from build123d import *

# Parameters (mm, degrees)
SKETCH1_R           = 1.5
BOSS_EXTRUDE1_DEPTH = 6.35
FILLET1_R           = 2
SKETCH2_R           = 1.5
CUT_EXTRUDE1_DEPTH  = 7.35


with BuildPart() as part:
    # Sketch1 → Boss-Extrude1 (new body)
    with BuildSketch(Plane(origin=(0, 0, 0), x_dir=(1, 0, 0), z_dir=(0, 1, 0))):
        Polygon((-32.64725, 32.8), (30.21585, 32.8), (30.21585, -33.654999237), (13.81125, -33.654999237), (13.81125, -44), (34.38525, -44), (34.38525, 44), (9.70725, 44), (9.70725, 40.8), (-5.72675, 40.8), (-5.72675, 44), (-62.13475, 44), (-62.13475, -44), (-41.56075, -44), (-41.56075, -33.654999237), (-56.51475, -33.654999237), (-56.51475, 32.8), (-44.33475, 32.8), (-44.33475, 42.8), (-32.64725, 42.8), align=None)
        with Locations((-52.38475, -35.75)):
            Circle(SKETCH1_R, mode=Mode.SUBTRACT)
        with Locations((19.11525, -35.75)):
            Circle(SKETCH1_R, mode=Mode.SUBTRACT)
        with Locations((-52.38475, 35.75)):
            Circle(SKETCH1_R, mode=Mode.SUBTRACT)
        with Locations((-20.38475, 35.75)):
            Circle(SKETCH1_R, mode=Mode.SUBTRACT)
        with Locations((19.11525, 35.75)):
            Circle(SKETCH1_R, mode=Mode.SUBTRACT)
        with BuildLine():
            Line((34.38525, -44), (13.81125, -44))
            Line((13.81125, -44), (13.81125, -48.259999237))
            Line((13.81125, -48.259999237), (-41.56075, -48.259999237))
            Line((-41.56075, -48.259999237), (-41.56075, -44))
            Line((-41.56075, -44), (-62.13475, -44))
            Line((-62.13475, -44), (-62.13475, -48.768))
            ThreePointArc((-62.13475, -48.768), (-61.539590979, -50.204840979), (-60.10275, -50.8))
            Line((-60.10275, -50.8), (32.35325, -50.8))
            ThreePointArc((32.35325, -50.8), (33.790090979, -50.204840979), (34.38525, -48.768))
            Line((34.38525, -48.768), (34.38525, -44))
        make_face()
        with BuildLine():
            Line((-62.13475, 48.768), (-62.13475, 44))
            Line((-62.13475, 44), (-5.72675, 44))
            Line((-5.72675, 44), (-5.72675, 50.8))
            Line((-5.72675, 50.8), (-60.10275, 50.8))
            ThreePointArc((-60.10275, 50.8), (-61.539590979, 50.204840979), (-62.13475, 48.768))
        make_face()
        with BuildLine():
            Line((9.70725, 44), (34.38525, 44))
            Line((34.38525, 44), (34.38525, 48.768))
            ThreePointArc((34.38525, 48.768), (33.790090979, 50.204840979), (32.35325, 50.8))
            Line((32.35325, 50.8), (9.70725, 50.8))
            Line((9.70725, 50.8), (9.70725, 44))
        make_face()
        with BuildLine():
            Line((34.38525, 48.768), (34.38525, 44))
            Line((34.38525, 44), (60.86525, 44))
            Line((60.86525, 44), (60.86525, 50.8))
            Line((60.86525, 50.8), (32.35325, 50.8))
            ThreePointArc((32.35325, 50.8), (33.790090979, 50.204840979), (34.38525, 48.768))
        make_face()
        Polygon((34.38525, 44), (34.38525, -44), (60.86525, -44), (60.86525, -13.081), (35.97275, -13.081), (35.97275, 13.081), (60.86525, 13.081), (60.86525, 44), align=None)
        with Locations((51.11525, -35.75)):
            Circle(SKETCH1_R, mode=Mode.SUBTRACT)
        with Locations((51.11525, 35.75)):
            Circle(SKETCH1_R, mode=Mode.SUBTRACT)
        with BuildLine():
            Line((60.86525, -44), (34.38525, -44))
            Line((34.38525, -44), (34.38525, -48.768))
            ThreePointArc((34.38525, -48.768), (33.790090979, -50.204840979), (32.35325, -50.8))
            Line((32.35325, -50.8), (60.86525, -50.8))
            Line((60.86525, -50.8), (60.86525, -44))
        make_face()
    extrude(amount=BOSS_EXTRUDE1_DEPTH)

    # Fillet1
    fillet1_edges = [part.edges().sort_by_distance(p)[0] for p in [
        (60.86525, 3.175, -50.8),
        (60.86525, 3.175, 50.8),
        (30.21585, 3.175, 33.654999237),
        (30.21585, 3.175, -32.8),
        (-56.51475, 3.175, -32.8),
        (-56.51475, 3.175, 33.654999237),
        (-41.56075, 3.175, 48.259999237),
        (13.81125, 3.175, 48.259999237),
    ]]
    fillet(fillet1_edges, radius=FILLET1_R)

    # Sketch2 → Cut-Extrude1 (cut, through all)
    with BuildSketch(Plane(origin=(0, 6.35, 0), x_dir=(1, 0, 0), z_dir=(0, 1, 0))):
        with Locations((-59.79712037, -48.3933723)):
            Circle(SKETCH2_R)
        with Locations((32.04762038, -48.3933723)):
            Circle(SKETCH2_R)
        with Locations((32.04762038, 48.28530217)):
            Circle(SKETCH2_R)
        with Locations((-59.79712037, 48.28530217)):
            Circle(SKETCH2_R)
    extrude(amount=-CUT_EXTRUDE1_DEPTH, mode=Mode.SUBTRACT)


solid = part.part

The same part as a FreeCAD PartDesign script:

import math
import FreeCAD as App
import Part
import Sketcher
Q = App.Units.Quantity


def edges_at(feature, points):
    """Names of the edges that pass closest to the given points."""
    edges = feature.Shape.Edges
    near = lambda p: min(range(len(edges)), key=lambda i: edges[i].distToShape(Part.Vertex(*p))[0])
    return sorted({f"Edge{near(p) + 1}" for p in points})

doc = App.newDocument("Part")
body = doc.addObject("PartDesign::Body", "Body")

sketch1 = doc.addObject("Sketcher::SketchObject", "Sketch")
body.addObject(sketch1)
sketch1.AttachmentSupport = (doc.XZ_Plane, [""])
sketch1.MapMode = "FlatFace"
sketch1.addGeometry([
    Part.LineSegment(App.Vector(9.7, -40.8, 0), App.Vector(-5.7, -40.8, 0)),
    Part.LineSegment(App.Vector(-5.7, -40.8, 0), App.Vector(-5.7, -50.8, 0)),
    Part.LineSegment(App.Vector(-5.7, -50.8, 0), App.Vector(-60.1, -50.8, 0)),
    Part.ArcOfCircle(Part.Circle(App.Vector(-60.1, -48.8, 0), App.Vector(0, 0, 1), 2), math.radians(-180), math.radians(-90)),
    Part.LineSegment(App.Vector(-62.1, -48.8, 0), App.Vector(-62.1, 48.8, 0)),
    Part.ArcOfCircle(Part.Circle(App.Vector(-60.1, 48.8, 0), App.Vector(0, 0, 1), 2), math.radians(90), math.radians(180)),
    Part.LineSegment(App.Vector(-60.1, 50.8, 0), App.Vector(60.9, 50.8, 0)),
    Part.LineSegment(App.Vector(60.9, 50.8, 0), App.Vector(60.9, 13.1, 0)),
    Part.LineSegment(App.Vector(60.9, 13.1, 0), App.Vector(36, 13.1, 0)),
    Part.LineSegment(App.Vector(36, 13.1, 0), App.Vector(36, -13.1, 0)),
    Part.LineSegment(App.Vector(36, -13.1, 0), App.Vector(60.9, -13.1, 0)),
    Part.LineSegment(App.Vector(60.9, -13.1, 0), App.Vector(60.9, -50.8, 0)),
    Part.LineSegment(App.Vector(60.9, -50.8, 0), App.Vector(9.7, -50.8, 0)),
    Part.LineSegment(App.Vector(9.7, -50.8, 0), App.Vector(9.7, -40.8, 0)),
    Part.Circle(App.Vector(-52.4, 35.8, 0), App.Vector(0, 0, 1), 1.5),
    Part.Circle(App.Vector(19.1, 35.8, 0), App.Vector(0, 0, 1), 1.5),
    Part.Circle(App.Vector(51.1, 35.8, 0), App.Vector(0, 0, 1), 1.5),
    Part.LineSegment(App.Vector(-32.6, -32.8, 0), App.Vector(30.2, -32.8, 0)),
    Part.LineSegment(App.Vector(30.2, -32.8, 0), App.Vector(30.2, 33.7, 0)),
    Part.LineSegment(App.Vector(30.2, 33.7, 0), App.Vector(13.8, 33.7, 0)),
    Part.LineSegment(App.Vector(13.8, 33.7, 0), App.Vector(13.8, 48.3, 0)),
    Part.LineSegment(App.Vector(13.8, 48.3, 0), App.Vector(-41.6, 48.3, 0)),
    Part.LineSegment(App.Vector(-41.6, 48.3, 0), App.Vector(-41.6, 33.7, 0)),
    Part.LineSegment(App.Vector(-41.6, 33.7, 0), App.Vector(-56.5, 33.7, 0)),
    Part.LineSegment(App.Vector(-56.5, 33.7, 0), App.Vector(-56.5, -32.8, 0)),
    Part.LineSegment(App.Vector(-56.5, -32.8, 0), App.Vector(-44.3, -32.8, 0)),
    Part.LineSegment(App.Vector(-44.3, -32.8, 0), App.Vector(-44.3, -42.8, 0)),
    Part.LineSegment(App.Vector(-44.3, -42.8, 0), App.Vector(-32.6, -42.8, 0)),
    Part.LineSegment(App.Vector(-32.6, -42.8, 0), App.Vector(-32.6, -32.8, 0)),
    Part.Circle(App.Vector(-52.4, -35.8, 0), App.Vector(0, 0, 1), 1.5),
    Part.Circle(App.Vector(-20.4, -35.8, 0), App.Vector(0, 0, 1), 1.5),
    Part.Circle(App.Vector(19.1, -35.8, 0), App.Vector(0, 0, 1), 1.5),
    Part.Circle(App.Vector(51.1, -35.8, 0), App.Vector(0, 0, 1), 1.5),
], False)
sketch1.addConstraint([
    Sketcher.Constraint("Coincident", 0, 2, 1, 1),
    Sketcher.Constraint("Coincident", 1, 2, 2, 1),
    Sketcher.Constraint("Tangent", 2, 2, 3, 2),
    Sketcher.Constraint("Tangent", 3, 1, 4, 1),
    Sketcher.Constraint("Tangent", 4, 2, 5, 2),
    Sketcher.Constraint("Tangent", 5, 1, 6, 1),
    Sketcher.Constraint("Coincident", 6, 2, 7, 1),
    Sketcher.Constraint("Coincident", 7, 2, 8, 1),
    Sketcher.Constraint("Coincident", 8, 2, 9, 1),
    Sketcher.Constraint("Coincident", 9, 2, 10, 1),
    Sketcher.Constraint("Coincident", 10, 2, 11, 1),
    Sketcher.Constraint("Coincident", 11, 2, 12, 1),
    Sketcher.Constraint("Coincident", 12, 2, 13, 1),
    Sketcher.Constraint("Coincident", 13, 2, 0, 1),
    Sketcher.Constraint("Coincident", 17, 2, 18, 1),
    Sketcher.Constraint("Coincident", 18, 2, 19, 1),
    Sketcher.Constraint("Coincident", 19, 2, 20, 1),
    Sketcher.Constraint("Coincident", 20, 2, 21, 1),
    Sketcher.Constraint("Coincident", 21, 2, 22, 1),
    Sketcher.Constraint("Coincident", 22, 2, 23, 1),
    Sketcher.Constraint("Coincident", 23, 2, 24, 1),
    Sketcher.Constraint("Coincident", 24, 2, 25, 1),
    Sketcher.Constraint("Coincident", 25, 2, 26, 1),
    Sketcher.Constraint("Coincident", 26, 2, 27, 1),
    Sketcher.Constraint("Coincident", 27, 2, 28, 1),
    Sketcher.Constraint("Coincident", 28, 2, 17, 1),
    Sketcher.Constraint("Horizontal", 0),
    Sketcher.Constraint("Vertical", 1),
    Sketcher.Constraint("Horizontal", 2),
    Sketcher.Constraint("Vertical", 4),
    Sketcher.Constraint("Horizontal", 6),
    Sketcher.Constraint("Vertical", 7),
    Sketcher.Constraint("Horizontal", 8),
    Sketcher.Constraint("Vertical", 9),
    Sketcher.Constraint("Horizontal", 10),
    Sketcher.Constraint("Vertical", 11),
    Sketcher.Constraint("Horizontal", 12),
    Sketcher.Constraint("Vertical", 13),
    Sketcher.Constraint("Horizontal", 17),
    Sketcher.Constraint("Vertical", 18),
    Sketcher.Constraint("Horizontal", 19),
    Sketcher.Constraint("Vertical", 20),
    Sketcher.Constraint("Horizontal", 21),
    Sketcher.Constraint("Vertical", 22),
    Sketcher.Constraint("Horizontal", 23),
    Sketcher.Constraint("Vertical", 24),
    Sketcher.Constraint("Horizontal", 25),
    Sketcher.Constraint("Vertical", 26),
    Sketcher.Constraint("Horizontal", 27),
    Sketcher.Constraint("Vertical", 28),
    Sketcher.Constraint("Equal", 3, 5),
    Sketcher.Constraint("Equal", 14, 15),
    Sketcher.Constraint("Equal", 15, 16),
    Sketcher.Constraint("Equal", 16, 29),
    Sketcher.Constraint("Equal", 29, 30),
    Sketcher.Constraint("Equal", 30, 31),
    Sketcher.Constraint("Equal", 31, 32),
    Sketcher.Constraint("Symmetric", 14, 3, 29, 3, -1),
    Sketcher.Constraint("Symmetric", 15, 3, 31, 3, -1),
    Sketcher.Constraint("Symmetric", 16, 3, 32, 3, -1),
    Sketcher.Constraint("Symmetric", 7, 2, 10, 2, -1),
    Sketcher.Constraint("Horizontal", 14, 3, 15, 3),
    Sketcher.Constraint("Horizontal", 15, 3, 16, 3),
    Sketcher.Constraint("Horizontal", 29, 3, 30, 3),
    Sketcher.Constraint("Horizontal", 2, 2, 11, 2),
    Sketcher.Constraint("Horizontal", 19, 2, 22, 2),
    Sketcher.Constraint("Horizontal", 17, 2, 24, 2),
    Sketcher.Constraint("Equal", 7, 11),
    Sketcher.Constraint("Equal", 13, 26),
    Sketcher.Constraint("Radius", 3, Q("0.08 in")),
    Sketcher.Constraint("DistanceY", 1, 2, -1, 1, Q("2 in")),
    Sketcher.Constraint("DistanceX", 21, 2, 21, 1, Q("2.18 in")),
    Sketcher.Constraint("DistanceY", 9, 2, 9, 1, Q("1.03 in")),
    Sketcher.Constraint("DistanceY", -1, 1, 20, 2, Q("1.9 in")),
    Sketcher.Constraint("Diameter", 14, Q("3 mm")),
    Sketcher.Constraint("DistanceY", 20, 1, 20, 2, Q("0.575 in")),
    Sketcher.Constraint("DistanceX", 5, 3, 21, 2, Q("0.73 in")),
    Sketcher.Constraint("DistanceX", 0, 2, 0, 1, Q("15.434 mm")),
    Sketcher.Constraint("DistanceX", 2, 2, 2, 1, Q("54.376 mm")),
    Sketcher.Constraint("DistanceX", 6, 1, 6, 2, Q("120.968 mm")),
    Sketcher.Constraint("DistanceX", 8, 2, 8, 1, Q("24.8925 mm")),
    Sketcher.Constraint("DistanceX", 17, 1, 17, 2, Q("62.8631 mm")),
    Sketcher.Constraint("DistanceX", 19, 2, 19, 1, Q("16.4046 mm")),
    Sketcher.Constraint("DistanceX", 23, 2, 23, 1, Q("14.954 mm")),
    Sketcher.Constraint("DistanceX", 25, 1, 25, 2, Q("12.18 mm")),
    Sketcher.Constraint("DistanceY", 1, 2, 1, 1, Q("10 mm")),
    Sketcher.Constraint("DistanceY", 18, 1, 18, 2, Q("66.454999 mm")),
    Sketcher.Constraint("DistanceY", -1, 1, 14, 3, Q("35.75 mm")),
    Sketcher.Constraint("DistanceX", 5, 3, 14, 3, Q("7.718 mm")),
    Sketcher.Constraint("DistanceX", 14, 3, 15, 3, Q("71.5 mm")),
    Sketcher.Constraint("DistanceX", 15, 3, 16, 3, Q("32 mm")),
    Sketcher.Constraint("DistanceX", 29, 3, 30, 3, Q("32 mm")),
    Sketcher.Constraint("DistanceX", 3, 3, -1, 1, Q("60.10275 mm")),
])
pad1 = doc.addObject("PartDesign::Pad", "Pad")
body.addObject(pad1)
pad1.Profile = sketch1
pad1.Length = Q("0.25 in")
pad1.Reversed = True
doc.recompute()

fillet = doc.addObject("PartDesign::Fillet", "Fillet")
body.addObject(fillet)
fillet.Base = (pad1, edges_at(pad1, [
    (60.865, 3.175, -50.8),
    (60.865, 3.175, 50.8),
    (30.216, 3.175, 33.655),
    (30.216, 3.175, -32.8),
    (-56.515, 3.175, -32.8),
    (-56.515, 3.175, 33.655),
    (-41.561, 3.175, 48.26),
    (13.811, 3.175, 48.26),
]))
fillet.Radius = 2

sketch2 = doc.addObject("Sketcher::SketchObject", "Sketch001")
body.addObject(sketch2)
sketch2.AttachmentSupport = (doc.XZ_Plane, [""])
sketch2.MapMode = "FlatFace"
sketch2.AttachmentOffset = App.Placement(App.Vector(0, 0, -0.25 * 25.4), App.Rotation())
sketch2.addGeometry([
    Part.Circle(App.Vector(-59.8, 48.4, 0), App.Vector(0, 0, 1), 1.5),
    Part.Circle(App.Vector(32, 48.4, 0), App.Vector(0, 0, 1), 1.5),
    Part.Circle(App.Vector(32, -48.3, 0), App.Vector(0, 0, 1), 1.5),
    Part.Circle(App.Vector(-59.8, -48.3, 0), App.Vector(0, 0, 1), 1.5),
], False)
sketch2.addConstraint([
    Sketcher.Constraint("Equal", 0, 1),
    Sketcher.Constraint("Equal", 1, 2),
    Sketcher.Constraint("Equal", 2, 3),
    Sketcher.Constraint("Horizontal", 0, 3, 1, 3),
    Sketcher.Constraint("Horizontal", 2, 3, 3, 3),
    Sketcher.Constraint("Vertical", 1, 3, 2, 3),
    Sketcher.Constraint("Vertical", 0, 3, 3, 3),
    Sketcher.Constraint("Diameter", 0, Q("3 mm")),
    Sketcher.Constraint("DistanceX", 0, 3, -1, 1, Q("59.79712 mm")),
    Sketcher.Constraint("DistanceX", -1, 1, 1, 3, Q("32.04762 mm")),
    Sketcher.Constraint("DistanceY", -1, 1, 0, 3, Q("48.393372 mm")),
    Sketcher.Constraint("DistanceY", 2, 3, -1, 1, Q("48.285302 mm")),
])
pocket1 = doc.addObject("PartDesign::Pocket", "Pocket")
body.addObject(pocket1)
pocket1.Profile = sketch2
pocket1.Type = "ThroughAll"
pocket1.Reversed = True

doc.recompute()
